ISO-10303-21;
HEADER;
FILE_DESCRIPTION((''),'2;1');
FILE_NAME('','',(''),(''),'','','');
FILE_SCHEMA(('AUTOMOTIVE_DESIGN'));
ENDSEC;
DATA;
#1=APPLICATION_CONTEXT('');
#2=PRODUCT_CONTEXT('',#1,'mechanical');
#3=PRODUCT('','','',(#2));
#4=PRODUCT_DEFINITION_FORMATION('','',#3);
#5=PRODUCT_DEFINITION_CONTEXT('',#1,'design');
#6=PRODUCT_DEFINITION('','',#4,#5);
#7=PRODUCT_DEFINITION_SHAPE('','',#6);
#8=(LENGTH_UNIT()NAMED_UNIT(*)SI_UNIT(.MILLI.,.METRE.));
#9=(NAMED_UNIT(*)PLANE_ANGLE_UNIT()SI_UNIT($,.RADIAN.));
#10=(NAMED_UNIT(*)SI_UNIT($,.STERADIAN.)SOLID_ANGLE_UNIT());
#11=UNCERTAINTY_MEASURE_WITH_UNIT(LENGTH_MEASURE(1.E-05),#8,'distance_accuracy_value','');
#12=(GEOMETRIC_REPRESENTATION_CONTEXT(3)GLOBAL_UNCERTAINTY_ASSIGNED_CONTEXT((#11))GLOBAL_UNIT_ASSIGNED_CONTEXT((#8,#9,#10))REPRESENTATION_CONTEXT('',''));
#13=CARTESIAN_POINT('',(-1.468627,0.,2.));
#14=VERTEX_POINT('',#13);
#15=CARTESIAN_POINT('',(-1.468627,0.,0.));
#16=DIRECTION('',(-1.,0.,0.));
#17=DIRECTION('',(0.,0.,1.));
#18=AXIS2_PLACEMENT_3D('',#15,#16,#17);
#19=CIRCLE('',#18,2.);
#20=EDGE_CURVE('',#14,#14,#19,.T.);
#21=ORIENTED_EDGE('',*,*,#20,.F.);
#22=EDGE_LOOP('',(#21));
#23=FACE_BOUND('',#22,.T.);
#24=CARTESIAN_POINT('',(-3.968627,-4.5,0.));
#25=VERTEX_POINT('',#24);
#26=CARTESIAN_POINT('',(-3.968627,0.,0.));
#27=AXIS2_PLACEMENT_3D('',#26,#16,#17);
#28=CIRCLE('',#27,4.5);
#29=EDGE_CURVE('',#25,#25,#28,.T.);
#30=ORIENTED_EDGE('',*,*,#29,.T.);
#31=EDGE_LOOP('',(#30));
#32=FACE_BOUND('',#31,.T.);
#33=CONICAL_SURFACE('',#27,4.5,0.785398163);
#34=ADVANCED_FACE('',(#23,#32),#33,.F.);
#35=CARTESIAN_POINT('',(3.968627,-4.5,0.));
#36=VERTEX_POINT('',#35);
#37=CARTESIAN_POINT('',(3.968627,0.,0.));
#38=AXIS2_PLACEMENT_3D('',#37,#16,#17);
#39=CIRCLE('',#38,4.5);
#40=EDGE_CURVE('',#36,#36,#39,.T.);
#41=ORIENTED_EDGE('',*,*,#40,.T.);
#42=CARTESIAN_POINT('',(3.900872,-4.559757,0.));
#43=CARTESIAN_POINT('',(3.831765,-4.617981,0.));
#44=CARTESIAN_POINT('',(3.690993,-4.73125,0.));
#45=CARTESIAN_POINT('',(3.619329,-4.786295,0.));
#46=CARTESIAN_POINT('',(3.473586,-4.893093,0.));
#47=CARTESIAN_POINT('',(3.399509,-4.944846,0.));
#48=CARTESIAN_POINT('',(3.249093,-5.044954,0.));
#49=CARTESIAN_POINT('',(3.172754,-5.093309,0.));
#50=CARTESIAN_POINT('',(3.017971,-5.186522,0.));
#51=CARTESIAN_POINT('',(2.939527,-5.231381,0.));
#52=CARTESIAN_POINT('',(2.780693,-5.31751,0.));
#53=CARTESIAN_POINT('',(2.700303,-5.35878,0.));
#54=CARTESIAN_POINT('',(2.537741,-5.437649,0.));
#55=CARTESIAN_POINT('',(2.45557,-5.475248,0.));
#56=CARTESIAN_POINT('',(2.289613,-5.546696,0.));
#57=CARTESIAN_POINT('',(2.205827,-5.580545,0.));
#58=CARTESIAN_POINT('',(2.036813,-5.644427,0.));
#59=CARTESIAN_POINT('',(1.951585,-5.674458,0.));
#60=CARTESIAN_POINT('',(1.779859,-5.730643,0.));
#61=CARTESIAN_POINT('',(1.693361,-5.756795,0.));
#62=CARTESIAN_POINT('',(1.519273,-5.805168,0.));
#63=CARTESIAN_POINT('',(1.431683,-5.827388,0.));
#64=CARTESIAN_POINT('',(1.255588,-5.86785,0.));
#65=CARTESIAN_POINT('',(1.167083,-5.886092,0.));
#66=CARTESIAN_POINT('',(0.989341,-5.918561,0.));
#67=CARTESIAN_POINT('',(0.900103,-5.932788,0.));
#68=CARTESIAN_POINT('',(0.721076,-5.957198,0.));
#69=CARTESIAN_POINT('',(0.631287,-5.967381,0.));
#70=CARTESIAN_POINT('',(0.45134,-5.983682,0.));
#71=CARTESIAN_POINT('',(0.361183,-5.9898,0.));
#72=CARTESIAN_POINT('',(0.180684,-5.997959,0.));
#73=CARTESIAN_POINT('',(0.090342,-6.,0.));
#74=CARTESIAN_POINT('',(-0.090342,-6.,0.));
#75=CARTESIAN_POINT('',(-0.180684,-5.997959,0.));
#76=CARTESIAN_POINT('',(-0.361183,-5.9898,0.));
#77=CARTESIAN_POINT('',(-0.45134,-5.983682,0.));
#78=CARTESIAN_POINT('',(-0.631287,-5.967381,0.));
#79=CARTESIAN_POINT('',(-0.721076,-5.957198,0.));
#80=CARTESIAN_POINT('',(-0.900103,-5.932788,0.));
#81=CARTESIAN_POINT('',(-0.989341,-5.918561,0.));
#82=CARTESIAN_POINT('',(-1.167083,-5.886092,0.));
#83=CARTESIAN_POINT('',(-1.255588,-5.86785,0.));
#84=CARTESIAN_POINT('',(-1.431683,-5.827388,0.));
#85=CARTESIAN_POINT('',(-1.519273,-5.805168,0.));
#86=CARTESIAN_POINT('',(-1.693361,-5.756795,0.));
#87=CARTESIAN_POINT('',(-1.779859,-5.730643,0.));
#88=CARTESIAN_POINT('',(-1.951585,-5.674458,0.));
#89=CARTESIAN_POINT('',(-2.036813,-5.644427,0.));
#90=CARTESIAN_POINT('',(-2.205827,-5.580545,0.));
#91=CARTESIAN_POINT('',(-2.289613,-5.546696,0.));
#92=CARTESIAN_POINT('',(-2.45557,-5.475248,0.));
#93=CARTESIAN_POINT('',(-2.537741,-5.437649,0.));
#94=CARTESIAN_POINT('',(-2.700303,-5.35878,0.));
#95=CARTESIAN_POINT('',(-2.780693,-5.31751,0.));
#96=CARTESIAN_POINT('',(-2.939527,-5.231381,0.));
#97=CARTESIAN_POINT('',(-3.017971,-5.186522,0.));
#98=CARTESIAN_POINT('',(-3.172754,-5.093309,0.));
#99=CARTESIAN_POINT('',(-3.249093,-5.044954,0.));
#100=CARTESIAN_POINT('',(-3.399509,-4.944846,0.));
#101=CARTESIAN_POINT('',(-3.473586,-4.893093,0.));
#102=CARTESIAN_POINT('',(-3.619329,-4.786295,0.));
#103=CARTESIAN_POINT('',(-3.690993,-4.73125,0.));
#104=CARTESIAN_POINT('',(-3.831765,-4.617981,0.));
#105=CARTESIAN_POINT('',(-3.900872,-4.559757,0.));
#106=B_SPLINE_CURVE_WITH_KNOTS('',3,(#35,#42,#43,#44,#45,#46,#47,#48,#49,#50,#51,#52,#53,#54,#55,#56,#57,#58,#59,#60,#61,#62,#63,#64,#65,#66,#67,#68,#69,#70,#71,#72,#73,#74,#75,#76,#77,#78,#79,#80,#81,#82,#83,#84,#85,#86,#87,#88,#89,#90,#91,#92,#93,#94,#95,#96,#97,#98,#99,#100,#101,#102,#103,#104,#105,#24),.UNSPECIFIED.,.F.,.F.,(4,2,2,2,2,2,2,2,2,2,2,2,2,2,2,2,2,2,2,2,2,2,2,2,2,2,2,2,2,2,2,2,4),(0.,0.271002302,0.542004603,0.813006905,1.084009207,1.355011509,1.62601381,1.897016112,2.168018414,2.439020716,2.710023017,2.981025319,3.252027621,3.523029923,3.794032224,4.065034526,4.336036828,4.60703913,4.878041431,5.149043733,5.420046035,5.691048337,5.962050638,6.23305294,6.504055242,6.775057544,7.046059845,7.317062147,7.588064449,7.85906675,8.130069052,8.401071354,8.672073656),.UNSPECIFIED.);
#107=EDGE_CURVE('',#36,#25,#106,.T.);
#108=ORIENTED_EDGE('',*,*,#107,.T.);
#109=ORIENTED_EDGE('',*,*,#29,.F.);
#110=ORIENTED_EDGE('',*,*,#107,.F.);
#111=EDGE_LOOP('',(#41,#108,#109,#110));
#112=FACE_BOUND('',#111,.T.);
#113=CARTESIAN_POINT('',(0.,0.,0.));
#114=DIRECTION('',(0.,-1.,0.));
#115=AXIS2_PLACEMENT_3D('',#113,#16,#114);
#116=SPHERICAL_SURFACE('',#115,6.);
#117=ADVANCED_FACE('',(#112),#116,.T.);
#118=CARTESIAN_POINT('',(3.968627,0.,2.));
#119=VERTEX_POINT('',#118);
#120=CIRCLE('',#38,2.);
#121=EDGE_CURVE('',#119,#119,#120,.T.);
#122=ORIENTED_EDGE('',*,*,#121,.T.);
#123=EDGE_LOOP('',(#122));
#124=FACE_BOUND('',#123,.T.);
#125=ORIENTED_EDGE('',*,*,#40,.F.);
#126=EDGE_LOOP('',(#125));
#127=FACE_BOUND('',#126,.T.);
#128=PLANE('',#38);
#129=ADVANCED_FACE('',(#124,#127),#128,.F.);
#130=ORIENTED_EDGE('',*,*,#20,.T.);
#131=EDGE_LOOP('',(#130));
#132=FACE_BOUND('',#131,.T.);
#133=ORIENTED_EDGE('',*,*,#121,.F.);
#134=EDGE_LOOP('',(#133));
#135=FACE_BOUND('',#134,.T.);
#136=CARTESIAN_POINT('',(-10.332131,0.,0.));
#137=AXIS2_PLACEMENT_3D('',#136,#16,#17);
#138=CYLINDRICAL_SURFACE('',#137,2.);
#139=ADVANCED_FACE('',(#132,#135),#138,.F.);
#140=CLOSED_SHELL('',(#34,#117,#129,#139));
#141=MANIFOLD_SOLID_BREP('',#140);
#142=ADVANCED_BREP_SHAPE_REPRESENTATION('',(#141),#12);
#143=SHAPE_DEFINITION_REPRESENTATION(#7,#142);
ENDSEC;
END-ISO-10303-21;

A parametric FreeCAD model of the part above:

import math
import FreeCAD as App
import Part
import Sketcher
from FreeCAD import Vector
Q = App.Units.Quantity

doc = App.newDocument("Part")
body = doc.addObject("PartDesign::Body", "Body")

# Sketch on XY plane
sketch1 = body.newObject("Sketcher::SketchObject", "Sketch")
sketch1.AttachmentSupport = (doc.getObject("XY_Plane"), [""])
sketch1.MapMode = "FlatFace"
sketch1.addGeometry(Part.LineSegment(Vector(3.968627, -2, 0), Vector(-1.468627, -2, 0)), False)
sketch1.addGeometry(Part.LineSegment(Vector(-1.468627, -2, 0), Vector(-3.968627, -4.5, 0)), False)
sketch1.addGeometry(Part.ArcOfCircle(Part.Circle(Vector(0, 0, 0), Vector(0, 0, 1), 6), math.radians(-131.409622), math.radians(-48.590378)), False)
sketch1.addGeometry(Part.LineSegment(Vector(3.968627, -4.5, 0), Vector(3.968627, -2, 0)), False)
sketch1.addConstraint(Sketcher.Constraint("Coincident", 0, 2, 1, 1))
sketch1.addConstraint(Sketcher.Constraint("Coincident", 1, 2, 2, 1))
sketch1.addConstraint(Sketcher.Constraint("Coincident", 2, 2, 3, 1))
sketch1.addConstraint(Sketcher.Constraint("Coincident", 3, 2, 0, 1))
sketch1.addConstraint(Sketcher.Constraint("Horizontal", 0))
sketch1.addConstraint(Sketcher.Constraint("Vertical", 3))
sketch1.addConstraint(Sketcher.Constraint("Coincident", 2, 3, -1, 1))
sketch1.addConstraint(Sketcher.Constraint("Horizontal", 1, 2, 2, 2))
sketch1.addConstraint(Sketcher.Constraint("Radius", 2, Q("6 mm")))
sketch1.addConstraint(Sketcher.Constraint("Angle", 1, Q("-135 deg")))
sketch1.addConstraint(Sketcher.Constraint("DistanceY", 3, 1, 3, 2, Q("2.5 mm")))
sketch1.addConstraint(Sketcher.Constraint("DistanceY", 0, 2, -1, 1, Q("2 mm")))
revolution = body.newObject("PartDesign::Revolution", "Revolution")
revolution.Profile = sketch1
revolution.ReferenceAxis = (sketch1, ["H_Axis"])
revolution.Angle = 360

doc.recompute()
